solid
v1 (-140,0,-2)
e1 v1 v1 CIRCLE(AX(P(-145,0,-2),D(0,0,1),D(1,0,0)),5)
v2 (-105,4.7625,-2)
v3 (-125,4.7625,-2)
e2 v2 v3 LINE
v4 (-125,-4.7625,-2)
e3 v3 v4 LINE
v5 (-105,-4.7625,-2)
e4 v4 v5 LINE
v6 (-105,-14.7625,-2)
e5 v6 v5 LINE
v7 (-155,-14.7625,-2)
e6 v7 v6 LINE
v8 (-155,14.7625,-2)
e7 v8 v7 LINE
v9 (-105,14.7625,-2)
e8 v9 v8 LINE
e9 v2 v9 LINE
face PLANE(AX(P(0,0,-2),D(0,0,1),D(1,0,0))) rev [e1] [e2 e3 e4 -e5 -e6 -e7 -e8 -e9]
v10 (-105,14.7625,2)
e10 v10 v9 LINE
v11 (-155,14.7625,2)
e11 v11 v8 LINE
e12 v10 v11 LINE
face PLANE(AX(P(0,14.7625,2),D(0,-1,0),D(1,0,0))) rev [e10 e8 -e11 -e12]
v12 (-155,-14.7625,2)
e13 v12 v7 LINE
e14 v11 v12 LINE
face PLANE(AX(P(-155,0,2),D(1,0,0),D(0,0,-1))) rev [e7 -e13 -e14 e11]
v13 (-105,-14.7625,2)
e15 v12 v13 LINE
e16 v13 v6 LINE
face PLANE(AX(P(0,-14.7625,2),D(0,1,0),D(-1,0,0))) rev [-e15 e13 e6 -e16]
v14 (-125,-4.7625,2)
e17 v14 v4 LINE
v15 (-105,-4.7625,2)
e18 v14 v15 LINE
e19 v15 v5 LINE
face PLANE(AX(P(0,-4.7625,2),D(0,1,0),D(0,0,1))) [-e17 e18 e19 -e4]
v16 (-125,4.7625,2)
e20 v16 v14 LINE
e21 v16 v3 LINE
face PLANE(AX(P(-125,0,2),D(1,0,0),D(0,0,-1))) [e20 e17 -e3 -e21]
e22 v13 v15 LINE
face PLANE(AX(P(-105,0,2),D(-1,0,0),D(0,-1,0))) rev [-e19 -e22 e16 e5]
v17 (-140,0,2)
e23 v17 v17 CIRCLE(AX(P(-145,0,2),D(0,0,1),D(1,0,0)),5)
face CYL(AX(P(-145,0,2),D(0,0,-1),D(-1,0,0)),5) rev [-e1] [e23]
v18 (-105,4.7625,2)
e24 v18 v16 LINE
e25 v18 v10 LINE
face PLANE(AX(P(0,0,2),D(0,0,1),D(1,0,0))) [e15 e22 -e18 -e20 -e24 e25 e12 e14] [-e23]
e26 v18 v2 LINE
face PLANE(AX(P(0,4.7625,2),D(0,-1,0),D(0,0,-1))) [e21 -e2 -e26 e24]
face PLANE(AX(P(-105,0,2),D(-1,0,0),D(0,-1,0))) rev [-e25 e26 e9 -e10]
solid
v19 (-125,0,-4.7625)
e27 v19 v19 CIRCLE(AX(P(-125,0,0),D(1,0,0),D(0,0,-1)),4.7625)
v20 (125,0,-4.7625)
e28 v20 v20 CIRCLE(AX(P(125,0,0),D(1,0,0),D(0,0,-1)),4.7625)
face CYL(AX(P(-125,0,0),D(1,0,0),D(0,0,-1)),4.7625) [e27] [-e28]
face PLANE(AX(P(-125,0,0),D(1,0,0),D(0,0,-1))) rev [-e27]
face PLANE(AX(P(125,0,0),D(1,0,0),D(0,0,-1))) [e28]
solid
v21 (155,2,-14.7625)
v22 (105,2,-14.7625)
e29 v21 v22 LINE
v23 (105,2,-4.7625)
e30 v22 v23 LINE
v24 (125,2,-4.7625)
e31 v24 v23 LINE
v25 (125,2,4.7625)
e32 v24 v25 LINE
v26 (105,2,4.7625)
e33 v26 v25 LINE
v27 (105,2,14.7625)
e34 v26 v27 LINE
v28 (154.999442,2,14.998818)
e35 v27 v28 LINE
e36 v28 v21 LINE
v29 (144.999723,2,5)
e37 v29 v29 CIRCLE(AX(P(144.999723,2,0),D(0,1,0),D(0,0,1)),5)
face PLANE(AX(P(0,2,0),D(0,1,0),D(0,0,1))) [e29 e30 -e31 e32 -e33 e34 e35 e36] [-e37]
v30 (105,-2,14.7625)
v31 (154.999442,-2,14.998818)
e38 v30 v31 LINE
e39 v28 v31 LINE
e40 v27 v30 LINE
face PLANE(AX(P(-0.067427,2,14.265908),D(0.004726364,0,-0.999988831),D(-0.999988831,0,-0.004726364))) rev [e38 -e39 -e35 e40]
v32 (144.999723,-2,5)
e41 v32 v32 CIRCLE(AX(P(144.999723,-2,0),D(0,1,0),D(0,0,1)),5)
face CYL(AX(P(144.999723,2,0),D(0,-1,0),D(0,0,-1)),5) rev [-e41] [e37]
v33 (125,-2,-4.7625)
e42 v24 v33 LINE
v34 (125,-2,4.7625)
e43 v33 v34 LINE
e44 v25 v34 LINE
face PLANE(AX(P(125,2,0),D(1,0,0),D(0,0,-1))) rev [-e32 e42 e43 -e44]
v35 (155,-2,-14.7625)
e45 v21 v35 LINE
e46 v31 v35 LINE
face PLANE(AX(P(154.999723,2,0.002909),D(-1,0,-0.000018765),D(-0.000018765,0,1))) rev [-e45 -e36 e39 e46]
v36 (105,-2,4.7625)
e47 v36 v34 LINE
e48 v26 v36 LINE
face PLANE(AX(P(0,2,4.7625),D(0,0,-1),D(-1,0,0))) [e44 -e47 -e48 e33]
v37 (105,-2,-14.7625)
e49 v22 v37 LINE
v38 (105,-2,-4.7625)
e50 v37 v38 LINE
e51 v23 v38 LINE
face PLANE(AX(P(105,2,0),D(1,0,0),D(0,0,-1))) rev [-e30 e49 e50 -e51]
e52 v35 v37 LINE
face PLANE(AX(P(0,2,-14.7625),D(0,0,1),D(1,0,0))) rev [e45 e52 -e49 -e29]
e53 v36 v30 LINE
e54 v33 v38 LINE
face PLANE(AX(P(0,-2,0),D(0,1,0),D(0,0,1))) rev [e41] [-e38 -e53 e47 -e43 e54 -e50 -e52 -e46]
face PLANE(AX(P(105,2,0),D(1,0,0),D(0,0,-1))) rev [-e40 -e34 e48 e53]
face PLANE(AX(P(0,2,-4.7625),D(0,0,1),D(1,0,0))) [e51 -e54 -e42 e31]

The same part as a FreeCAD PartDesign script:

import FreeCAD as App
import Part
import Sketcher

doc = App.newDocument("Part")
body = doc.addObject("PartDesign::Body", "Body")

# Sketch on YZ plane
sketch1 = doc.addObject("Sketcher::SketchObject", "Sketch")
body.addObject(sketch1)
sketch1.AttachmentSupport = (doc.YZ_Plane, [""])
sketch1.MapMode = "FlatFace"
sketch1.AttachmentOffset = App.Placement(App.Vector(0, 0, -125), App.Rotation())
sketch1.addGeometry(Part.Circle(App.Vector(0, 0, 0), App.Vector(0, 0, 1), 4.8), False)
sketch1.addConstraint(Sketcher.Constraint("Coincident", 0, 3, -1, 1))
sketch1.addConstraint(Sketcher.Constraint("Diameter", 0, 9.525))

# Sketch on XY plane
sketch2 = doc.addObject("Sketcher::SketchObject", "Sketch001")
body.addObject(sketch2)
sketch2.AttachmentSupport = (doc.XY_Plane, [""])
sketch2.MapMode = "FlatFace"
sketch2.addGeometry(Part.LineSegment(App.Vector(-125, 0, 0), App.Vector(125, 0, 0)), False)
sketch2.addConstraint(Sketcher.Constraint("Horizontal", 0))
sketch2.addConstraint(Sketcher.Constraint("Symmetric", 0, 1, 0, 2, -1, 1))
sketch2.addConstraint(Sketcher.Constraint("DistanceX", 0, 1, 0, 2, 250.0))
doc.recompute()

additivepipe = doc.addObject("PartDesign::AdditivePipe", "AdditivePipe")
body.addObject(additivepipe)
additivepipe.Profile = sketch1
additivepipe.Spine = (sketch2, ["Edge1"])
body2 = doc.addObject("PartDesign::Body", "Body001")

# Sketch on XY plane
sketch3 = doc.addObject("Sketcher::SketchObject", "Sketch002")
body2.addObject(sketch3)
sketch3.AttachmentSupport = (doc.getObject("XY_Plane001"), [""])
sketch3.MapMode = "FlatFace"
sketch3.addGeometry(Part.LineSegment(App.Vector(-125, -5, 0), App.Vector(-125, 5, 0)), False)
sketch3.addGeometry(Part.LineSegment(App.Vector(-125, 5, 0), App.Vector(-105, 5, 0)), False)
sketch3.addGeometry(Part.LineSegment(App.Vector(-105, 5, 0), App.Vector(-105, 15, 0)), False)
sketch3.addGeometry(Part.LineSegment(App.Vector(-105, 15, 0), App.Vector(-155, 15, 0)), False)
sketch3.addGeometry(Part.LineSegment(App.Vector(-155, 15, 0), App.Vector(-155, -15, 0)), False)
sketch3.addGeometry(Part.LineSegment(App.Vector(-155, -15, 0), App.Vector(-105, -15, 0)), False)
sketch3.addGeometry(Part.LineSegment(App.Vector(-105, -15, 0), App.Vector(-105, -5, 0)), False)
sketch3.addGeometry(Part.LineSegment(App.Vector(-105, -5, 0), App.Vector(-125, -5, 0)), False)
sketch3.addGeometry(Part.Circle(App.Vector(-145, 0, 0), App.Vector(0, 0, 1), 5), False)
sketch3.addConstraint(Sketcher.Constraint("Coincident", 0, 2, 1, 1))
sketch3.addConstraint(Sketcher.Constraint("Coincident", 1, 2, 2, 1))
sketch3.addConstraint(Sketcher.Constraint("Coincident", 2, 2, 3, 1))
sketch3.addConstraint(Sketcher.Constraint("Coincident", 3, 2, 4, 1))
sketch3.addConstraint(Sketcher.Constraint("Coincident", 4, 2, 5, 1))
sketch3.addConstraint(Sketcher.Constraint("Coincident", 5, 2, 6, 1))
sketch3.addConstraint(Sketcher.Constraint("Coincident", 6, 2, 7, 1))
sketch3.addConstraint(Sketcher.Constraint("Coincident", 7, 2, 0, 1))
sketch3.addConstraint(Sketcher.Constraint("Vertical", 0))
sketch3.addConstraint(Sketcher.Constraint("Horizontal", 1))
sketch3.addConstraint(Sketcher.Constraint("Vertical", 2))
sketch3.addConstraint(Sketcher.Constraint("Horizontal", 3))
sketch3.addConstraint(Sketcher.Constraint("Vertical", 4))
sketch3.addConstraint(Sketcher.Constraint("Horizontal", 5))
sketch3.addConstraint(Sketcher.Constraint("Vertical", 6))
sketch3.addConstraint(Sketcher.Constraint("Horizontal", 7))
sketch3.addConstraint(Sketcher.Constraint("Symmetric", 2, 2, 5, 2, -1))
sketch3.addConstraint(Sketcher.Constraint("PointOnObject", 8, 3, -1))
sketch3.addConstraint(Sketcher.Constraint("Equal", 2, 6))
sketch3.addConstraint(Sketcher.Constraint("Diameter", 8, 10.0))
sketch3.addConstraint(Sketcher.Constraint("DistanceX", 1, 1, 1, 2, 20.0))
sketch3.addConstraint(Sketcher.Constraint("DistanceX", 3, 2, 3, 1, 50.0))
sketch3.addConstraint(Sketcher.Constraint("DistanceY", 2, 1, 2, 2, 10.0))
sketch3.addConstraint(Sketcher.Constraint("DistanceX", 8, 3, -1, 1, 145.0))
sketch3.addConstraint(Sketcher.Constraint("DistanceX", 0, 2, -1, 1, 125.0))
sketch3.addConstraint(Sketcher.Constraint("DistanceY", 0, 1, 0, 2, 9.525))
pad1 = doc.addObject("PartDesign::Pad", "Pad")
body2.addObject(pad1)
pad1.Profile = sketch3
pad1.Length = 4
pad1.Midplane = True
body3 = doc.addObject("PartDesign::Body", "Body002")

# Sketch on XZ plane
sketch4 = doc.addObject("Sketcher::SketchObject", "Sketch003")
body3.addObject(sketch4)
sketch4.AttachmentSupport = (doc.getObject("XZ_Plane002"), [""])
sketch4.MapMode = "FlatFace"
sketch4.addGeometry(Part.LineSegment(App.Vector(125, 4.7625, 0), App.Vector(105, 4.7625, 0)), False)
sketch4.addGeometry(Part.LineSegment(App.Vector(105, 4.7625, 0), App.Vector(105, 14.7625, 0)), False)
sketch4.addGeometry(Part.LineSegment(App.Vector(105, 14.7625, 0), App.Vector(154.999442, 14.998818, 0)), False)
sketch4.addGeometry(Part.LineSegment(App.Vector(154.999442, 14.998818, 0), App.Vector(155, -14.7625, 0)), False)
sketch4.addGeometry(Part.LineSegment(App.Vector(155, -14.7625, 0), App.Vector(105, -14.7625, 0)), False)
sketch4.addGeometry(Part.LineSegment(App.Vector(105, -14.7625, 0), App.Vector(105, -4.7625, 0)), False)
sketch4.addGeometry(Part.LineSegment(App.Vector(105, -4.7625, 0), App.Vector(125, -4.7625, 0)), False)
sketch4.addGeometry(Part.LineSegment(App.Vector(125, -4.7625, 0), App.Vector(125, 4.7625, 0)), False)
sketch4.addGeometry(Part.Circle(App.Vector(144.999723, 0, 0), App.Vector(0, 0, 1), 5), False)
sketch4.addConstraint(Sketcher.Constraint("Coincident", 0, 2, 1, 1))
sketch4.addConstraint(Sketcher.Constraint("Coincident", 1, 2, 2, 1))
sketch4.addConstraint(Sketcher.Constraint("Coincident", 2, 2, 3, 1))
sketch4.addConstraint(Sketcher.Constraint("Coincident", 3, 2, 4, 1))
sketch4.addConstraint(Sketcher.Constraint("Coincident", 4, 2, 5, 1))
sketch4.addConstraint(Sketcher.Constraint("Coincident", 5, 2, 6, 1))
sketch4.addConstraint(Sketcher.Constraint("Coincident", 6, 2, 7, 1))
sketch4.addConstraint(Sketcher.Constraint("Coincident", 7, 2, 0, 1))
sketch4.addConstraint(Sketcher.Constraint("Horizontal", 0))
sketch4.addConstraint(Sketcher.Constraint("Vertical", 1))
sketch4.addConstraint(Sketcher.Constraint("Horizontal", 4))
sketch4.addConstraint(Sketcher.Constraint("Vertical", 5))
sketch4.addConstraint(Sketcher.Constraint("Horizontal", 6))
sketch4.addConstraint(Sketcher.Constraint("Vertical", 7))
sketch4.addConstraint(Sketcher.Constraint("Symmetric", 1, 2, 4, 2, -1))
sketch4.addConstraint(Sketcher.Constraint("PointOnObject", 8, 3, -1))
sketch4.addConstraint(Sketcher.Constraint("Equal", 1, 5))
sketch4.addConstraint(Sketcher.Constraint("Diameter", 8, 10.0))
sketch4.addConstraint(Sketcher.Constraint("DistanceX", 0, 2, 0, 1, 20.0))
sketch4.addConstraint(Sketcher.Constraint("DistanceX", 4, 2, 4, 1, 50.0))
sketch4.addConstraint(Sketcher.Constraint("DistanceY", 1, 1, 1, 2, 10.0))
sketch4.addConstraint(Sketcher.Constraint("Distance", 2, 50.0))
sketch4.addConstraint(Sketcher.Constraint("DistanceX", -1, 1, 0, 2, 105.0))
sketch4.addConstraint(Sketcher.Constraint("DistanceY", 7, 1, 7, 2, 9.525))
sketch4.addConstraint(Sketcher.Constraint("Distance", 3, 29.761318))
sketch4.addConstraint(Sketcher.Constraint("DistanceX", 8, 3, 2, 2, 9.999719))
pad2 = doc.addObject("PartDesign::Pad", "Pad001")
body3.addObject(pad2)
pad2.Profile = sketch4
pad2.Length = 4
pad2.Midplane = True

doc.recompute()
